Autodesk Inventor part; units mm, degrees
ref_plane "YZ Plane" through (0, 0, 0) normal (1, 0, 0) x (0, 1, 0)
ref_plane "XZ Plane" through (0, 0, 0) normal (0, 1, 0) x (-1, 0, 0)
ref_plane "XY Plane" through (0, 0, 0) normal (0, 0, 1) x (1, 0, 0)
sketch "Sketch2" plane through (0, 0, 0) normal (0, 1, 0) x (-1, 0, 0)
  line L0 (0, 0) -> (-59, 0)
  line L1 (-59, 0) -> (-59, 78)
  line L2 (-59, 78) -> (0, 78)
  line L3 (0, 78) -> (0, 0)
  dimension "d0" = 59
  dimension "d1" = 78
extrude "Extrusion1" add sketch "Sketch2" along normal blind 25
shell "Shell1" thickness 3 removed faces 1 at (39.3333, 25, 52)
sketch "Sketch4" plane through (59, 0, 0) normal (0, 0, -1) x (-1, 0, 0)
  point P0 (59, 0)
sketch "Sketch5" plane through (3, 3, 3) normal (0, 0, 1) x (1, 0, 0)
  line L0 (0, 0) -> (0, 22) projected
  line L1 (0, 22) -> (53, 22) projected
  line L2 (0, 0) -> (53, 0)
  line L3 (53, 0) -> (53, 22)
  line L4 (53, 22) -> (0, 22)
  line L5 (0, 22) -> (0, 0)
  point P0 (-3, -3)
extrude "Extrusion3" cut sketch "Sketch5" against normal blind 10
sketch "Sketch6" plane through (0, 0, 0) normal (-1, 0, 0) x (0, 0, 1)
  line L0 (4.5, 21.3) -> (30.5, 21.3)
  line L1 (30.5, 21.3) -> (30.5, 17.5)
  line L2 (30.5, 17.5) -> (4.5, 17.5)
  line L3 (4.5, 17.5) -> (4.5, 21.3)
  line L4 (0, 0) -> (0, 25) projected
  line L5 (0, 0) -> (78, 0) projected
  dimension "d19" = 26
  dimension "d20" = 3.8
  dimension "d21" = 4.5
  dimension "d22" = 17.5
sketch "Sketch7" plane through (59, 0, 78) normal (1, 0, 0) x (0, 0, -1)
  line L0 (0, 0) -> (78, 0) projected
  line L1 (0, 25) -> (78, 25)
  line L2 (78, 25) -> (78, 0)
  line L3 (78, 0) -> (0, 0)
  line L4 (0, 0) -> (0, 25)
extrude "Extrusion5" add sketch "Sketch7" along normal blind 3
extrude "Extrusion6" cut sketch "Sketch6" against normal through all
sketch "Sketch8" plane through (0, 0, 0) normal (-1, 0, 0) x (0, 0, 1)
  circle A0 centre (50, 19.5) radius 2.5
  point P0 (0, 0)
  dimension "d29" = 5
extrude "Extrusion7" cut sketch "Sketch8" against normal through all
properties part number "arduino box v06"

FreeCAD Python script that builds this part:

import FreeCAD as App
import Part
import Sketcher


def faces_at(feature, points):
    """Names of the faces that lie closest to the given points."""
    faces = feature.Shape.Faces
    near = lambda p: min(range(len(faces)), key=lambda i: faces[i].distToShape(Part.Vertex(*p))[0])
    return sorted({f"Face{near(p) + 1}" for p in points})


def add_polygon(sketch, points):
    """Adds a closed chain of lines whose ends are joined by coincident constraints."""
    first, n = sketch.GeometryCount, len(points)
    for a, b in zip(points, points[1:] + points[:1]):
        sketch.addGeometry(Part.LineSegment(App.Vector(*a, 0), App.Vector(*b, 0)), False)
    for i in range(n):
        sketch.addConstraint(Sketcher.Constraint("Coincident", first + i, 2, first + (i + 1) % n, 1))

doc = App.newDocument("Part")
body = doc.addObject("PartDesign::Body", "Body")

sketch1 = body.newObject("Sketcher::SketchObject", "Sketch")
sketch1.AttachmentSupport = (doc.getObject("XZ_Plane"), [""])
sketch1.MapMode = "FlatFace"
add_polygon(sketch1, [(59, 0), (0, 0), (0, 78), (59, 78)])
sketch1.addConstraint(Sketcher.Constraint("Horizontal", 0))
sketch1.addConstraint(Sketcher.Constraint("Vertical", 1))
sketch1.addConstraint(Sketcher.Constraint("Horizontal", 2))
sketch1.addConstraint(Sketcher.Constraint("Vertical", 3))
sketch1.addConstraint(Sketcher.Constraint("Coincident", 0, 2, -1, 1))
sketch1.addConstraint(Sketcher.Constraint("DistanceX", 0, 2, 0, 1, 59.0))
sketch1.addConstraint(Sketcher.Constraint("DistanceY", 1, 1, 1, 2, 78.0))
pad1 = body.newObject("PartDesign::Pad", "Pad")
pad1.Profile = sketch1
pad1.Length = 25
pad1.Reversed = True
doc.recompute()

thickness = body.newObject("PartDesign::Thickness", "Thickness")
thickness.Base = (pad1, faces_at(pad1, [(39.333, 25, 52)]))
thickness.Value = 3
thickness.Reversed = True
thickness.Join = "Intersection"

sketch2 = body.newObject("Sketcher::SketchObject", "Sketch001")
sketch2.AttachmentSupport = (doc.getObject("XY_Plane"), [""])
sketch2.MapMode = "FlatFace"
sketch2.AttachmentOffset = App.Placement(App.Vector(0, 0, 3), App.Rotation())
add_polygon(sketch2, [(3, 25), (3, 3), (56, 3), (56, 25)])
sketch2.addConstraint(Sketcher.Constraint("Vertical", 0))
sketch2.addConstraint(Sketcher.Constraint("Horizontal", 1))
sketch2.addConstraint(Sketcher.Constraint("Vertical", 2))
sketch2.addConstraint(Sketcher.Constraint("Horizontal", 3))
sketch2.addConstraint(Sketcher.Constraint("DistanceX", 1, 1, 1, 2, 53.0))
sketch2.addConstraint(Sketcher.Constraint("DistanceY", 0, 2, 0, 1, 22.0))
sketch2.addConstraint(Sketcher.Constraint("DistanceX", -1, 1, 0, 2, 3.0))
sketch2.addConstraint(Sketcher.Constraint("DistanceY", -1, 1, 0, 2, 3.0))
pocket1 = body.newObject("PartDesign::Pocket", "Pocket")
pocket1.Profile = sketch2
pocket1.Length = 10

sketch3 = body.newObject("Sketcher::SketchObject", "Sketch002")
sketch3.AttachmentSupport = (doc.getObject("YZ_Plane"), [""])
sketch3.MapMode = "FlatFace"
sketch3.AttachmentOffset = App.Placement(App.Vector(0, 0, 59), App.Rotation())
add_polygon(sketch3, [(25, 78), (0, 78), (0, 0), (25, 0)])
sketch3.addConstraint(Sketcher.Constraint("Horizontal", 0))
sketch3.addConstraint(Sketcher.Constraint("Vertical", 1))
sketch3.addConstraint(Sketcher.Constraint("Horizontal", 2))
sketch3.addConstraint(Sketcher.Constraint("Vertical", 3))
sketch3.addConstraint(Sketcher.Constraint("Coincident", 1, 2, -1, 1))
sketch3.addConstraint(Sketcher.Constraint("DistanceX", 0, 2, 0, 1, 25.0))
sketch3.addConstraint(Sketcher.Constraint("DistanceY", 1, 2, 1, 1, 78.0))
pad2 = body.newObject("PartDesign::Pad", "Pad001")
pad2.Profile = sketch3
pad2.Length = 3

sketch4 = body.newObject("Sketcher::SketchObject", "Sketch003")
sketch4.AttachmentSupport = (doc.getObject("YZ_Plane"), [""])
sketch4.MapMode = "FlatFace"
add_polygon(sketch4, [(21.3, 30.5), (21.3, 4.5), (17.5, 4.5), (17.5, 30.5)])
sketch4.addConstraint(Sketcher.Constraint("Vertical", 0))
sketch4.addConstraint(Sketcher.Constraint("Horizontal", 1))
sketch4.addConstraint(Sketcher.Constraint("Vertical", 2))
sketch4.addConstraint(Sketcher.Constraint("Horizontal", 3))
sketch4.addConstraint(Sketcher.Constraint("DistanceY", 0, 2, 0, 1, 26.0))
sketch4.addConstraint(Sketcher.Constraint("DistanceX", 1, 2, 1, 1, 3.8))
sketch4.addConstraint(Sketcher.Constraint("DistanceY", -1, 1, 0, 2, 4.5))
sketch4.addConstraint(Sketcher.Constraint("DistanceX", -1, 1, 1, 2, 17.5))
pocket2 = body.newObject("PartDesign::Pocket", "Pocket001")
pocket2.Profile = sketch4
pocket2.Type = "ThroughAll"
pocket2.Reversed = True

sketch5 = body.newObject("Sketcher::SketchObject", "Sketch004")
sketch5.AttachmentSupport = (doc.getObject("YZ_Plane"), [""])
sketch5.MapMode = "FlatFace"
sketch5.addGeometry(Part.Circle(App.Vector(19.5, 50, 0), App.Vector(0, 0, 1), 2.5), False)
sketch5.addConstraint(Sketcher.Constraint("Diameter", 0, 5.0))
sketch5.addConstraint(Sketcher.Constraint("DistanceY", -1, 1, 0, 3, 50.0))
sketch5.addConstraint(Sketcher.Constraint("DistanceX", -1, 1, 0, 3, 19.5))
pocket3 = body.newObject("PartDesign::Pocket", "Pocket002")
pocket3.Profile = sketch5
pocket3.Type = "ThroughAll"
pocket3.Reversed = True

doc.recompute()
